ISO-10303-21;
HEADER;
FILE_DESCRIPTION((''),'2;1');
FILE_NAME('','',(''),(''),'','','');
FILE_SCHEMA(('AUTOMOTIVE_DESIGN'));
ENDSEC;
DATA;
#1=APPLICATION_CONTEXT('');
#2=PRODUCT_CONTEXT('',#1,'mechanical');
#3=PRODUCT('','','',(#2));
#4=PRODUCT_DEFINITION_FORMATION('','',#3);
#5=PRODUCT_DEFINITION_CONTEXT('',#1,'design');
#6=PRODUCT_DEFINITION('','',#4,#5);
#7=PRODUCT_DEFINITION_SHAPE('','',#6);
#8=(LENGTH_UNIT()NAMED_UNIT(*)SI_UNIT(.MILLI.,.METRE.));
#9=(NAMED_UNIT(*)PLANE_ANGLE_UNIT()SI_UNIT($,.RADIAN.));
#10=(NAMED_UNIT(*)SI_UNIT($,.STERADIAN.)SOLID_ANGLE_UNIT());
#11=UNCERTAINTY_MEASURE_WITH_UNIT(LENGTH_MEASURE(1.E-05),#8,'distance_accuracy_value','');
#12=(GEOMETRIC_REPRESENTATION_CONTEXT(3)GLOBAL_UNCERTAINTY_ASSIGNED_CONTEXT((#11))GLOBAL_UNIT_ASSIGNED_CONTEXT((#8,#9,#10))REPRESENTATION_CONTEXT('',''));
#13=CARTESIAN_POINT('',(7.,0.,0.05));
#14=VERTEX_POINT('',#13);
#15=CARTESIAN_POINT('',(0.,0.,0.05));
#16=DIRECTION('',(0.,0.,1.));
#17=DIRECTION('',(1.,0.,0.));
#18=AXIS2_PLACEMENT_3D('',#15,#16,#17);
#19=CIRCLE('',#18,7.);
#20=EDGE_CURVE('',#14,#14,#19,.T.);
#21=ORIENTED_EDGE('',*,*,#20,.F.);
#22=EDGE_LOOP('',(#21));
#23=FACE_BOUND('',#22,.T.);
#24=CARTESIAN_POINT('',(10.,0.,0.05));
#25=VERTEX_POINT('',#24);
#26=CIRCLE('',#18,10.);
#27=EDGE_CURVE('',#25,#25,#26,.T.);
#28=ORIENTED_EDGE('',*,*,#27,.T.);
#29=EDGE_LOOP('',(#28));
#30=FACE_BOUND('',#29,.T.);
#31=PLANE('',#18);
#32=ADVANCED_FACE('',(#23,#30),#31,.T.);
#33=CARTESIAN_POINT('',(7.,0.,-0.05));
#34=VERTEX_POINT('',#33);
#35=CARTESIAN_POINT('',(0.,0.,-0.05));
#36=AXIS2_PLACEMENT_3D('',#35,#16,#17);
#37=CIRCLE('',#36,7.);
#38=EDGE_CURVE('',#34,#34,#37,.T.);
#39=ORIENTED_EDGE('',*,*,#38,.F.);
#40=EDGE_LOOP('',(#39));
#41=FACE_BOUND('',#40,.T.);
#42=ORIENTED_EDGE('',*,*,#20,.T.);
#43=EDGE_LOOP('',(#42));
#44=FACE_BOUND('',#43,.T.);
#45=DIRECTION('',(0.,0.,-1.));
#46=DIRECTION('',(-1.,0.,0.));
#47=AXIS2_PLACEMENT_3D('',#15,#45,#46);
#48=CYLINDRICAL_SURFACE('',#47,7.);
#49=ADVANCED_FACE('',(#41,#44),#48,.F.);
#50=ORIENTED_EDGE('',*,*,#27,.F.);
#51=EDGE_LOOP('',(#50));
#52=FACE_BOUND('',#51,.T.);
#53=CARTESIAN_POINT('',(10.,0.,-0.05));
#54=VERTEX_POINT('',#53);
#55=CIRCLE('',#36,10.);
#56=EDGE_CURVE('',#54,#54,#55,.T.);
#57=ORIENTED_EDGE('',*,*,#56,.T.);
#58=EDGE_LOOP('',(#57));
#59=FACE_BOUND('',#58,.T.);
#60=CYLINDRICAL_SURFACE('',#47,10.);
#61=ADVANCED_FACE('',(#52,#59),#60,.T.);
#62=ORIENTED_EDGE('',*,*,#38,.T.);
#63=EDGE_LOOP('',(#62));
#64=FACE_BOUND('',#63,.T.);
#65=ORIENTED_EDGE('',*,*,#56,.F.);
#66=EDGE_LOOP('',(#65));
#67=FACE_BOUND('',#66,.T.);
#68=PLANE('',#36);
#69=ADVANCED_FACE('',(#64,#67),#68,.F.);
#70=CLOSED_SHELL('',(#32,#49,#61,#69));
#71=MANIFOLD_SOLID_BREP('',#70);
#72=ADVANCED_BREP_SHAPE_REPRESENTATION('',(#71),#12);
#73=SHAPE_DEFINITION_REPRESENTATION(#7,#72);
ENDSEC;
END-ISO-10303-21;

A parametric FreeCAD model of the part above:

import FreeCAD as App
import Part
import Sketcher
Q = App.Units.Quantity

doc = App.newDocument("Part")
body = doc.addObject("PartDesign::Body", "Body")

# Sketch on XY plane
sketch1 = body.newObject("Sketcher::SketchObject", "Sketch")
sketch1.AttachmentSupport = (doc.getObject("XY_Plane"), [""])
sketch1.MapMode = "FlatFace"
sketch1.addGeometry([
    Part.Circle(App.Vector(0, 0, 0), App.Vector(0, 0, 1), 10),
    Part.Circle(App.Vector(0, 0, 0), App.Vector(0, 0, 1), 7),
], False)
sketch1.addConstraint([
    Sketcher.Constraint("Coincident", 0, 3, -1, 1),
    Sketcher.Constraint("Coincident", 1, 3, -1, 1),
    Sketcher.Constraint("Diameter", 0, Q("20 mm")),
    Sketcher.Constraint("Diameter", 1, Q("14 mm")),
])
pad1 = body.newObject("PartDesign::Pad", "Pad")
pad1.Profile = sketch1
pad1.Length = 0.1
pad1.Midplane = True

doc.recompute()
